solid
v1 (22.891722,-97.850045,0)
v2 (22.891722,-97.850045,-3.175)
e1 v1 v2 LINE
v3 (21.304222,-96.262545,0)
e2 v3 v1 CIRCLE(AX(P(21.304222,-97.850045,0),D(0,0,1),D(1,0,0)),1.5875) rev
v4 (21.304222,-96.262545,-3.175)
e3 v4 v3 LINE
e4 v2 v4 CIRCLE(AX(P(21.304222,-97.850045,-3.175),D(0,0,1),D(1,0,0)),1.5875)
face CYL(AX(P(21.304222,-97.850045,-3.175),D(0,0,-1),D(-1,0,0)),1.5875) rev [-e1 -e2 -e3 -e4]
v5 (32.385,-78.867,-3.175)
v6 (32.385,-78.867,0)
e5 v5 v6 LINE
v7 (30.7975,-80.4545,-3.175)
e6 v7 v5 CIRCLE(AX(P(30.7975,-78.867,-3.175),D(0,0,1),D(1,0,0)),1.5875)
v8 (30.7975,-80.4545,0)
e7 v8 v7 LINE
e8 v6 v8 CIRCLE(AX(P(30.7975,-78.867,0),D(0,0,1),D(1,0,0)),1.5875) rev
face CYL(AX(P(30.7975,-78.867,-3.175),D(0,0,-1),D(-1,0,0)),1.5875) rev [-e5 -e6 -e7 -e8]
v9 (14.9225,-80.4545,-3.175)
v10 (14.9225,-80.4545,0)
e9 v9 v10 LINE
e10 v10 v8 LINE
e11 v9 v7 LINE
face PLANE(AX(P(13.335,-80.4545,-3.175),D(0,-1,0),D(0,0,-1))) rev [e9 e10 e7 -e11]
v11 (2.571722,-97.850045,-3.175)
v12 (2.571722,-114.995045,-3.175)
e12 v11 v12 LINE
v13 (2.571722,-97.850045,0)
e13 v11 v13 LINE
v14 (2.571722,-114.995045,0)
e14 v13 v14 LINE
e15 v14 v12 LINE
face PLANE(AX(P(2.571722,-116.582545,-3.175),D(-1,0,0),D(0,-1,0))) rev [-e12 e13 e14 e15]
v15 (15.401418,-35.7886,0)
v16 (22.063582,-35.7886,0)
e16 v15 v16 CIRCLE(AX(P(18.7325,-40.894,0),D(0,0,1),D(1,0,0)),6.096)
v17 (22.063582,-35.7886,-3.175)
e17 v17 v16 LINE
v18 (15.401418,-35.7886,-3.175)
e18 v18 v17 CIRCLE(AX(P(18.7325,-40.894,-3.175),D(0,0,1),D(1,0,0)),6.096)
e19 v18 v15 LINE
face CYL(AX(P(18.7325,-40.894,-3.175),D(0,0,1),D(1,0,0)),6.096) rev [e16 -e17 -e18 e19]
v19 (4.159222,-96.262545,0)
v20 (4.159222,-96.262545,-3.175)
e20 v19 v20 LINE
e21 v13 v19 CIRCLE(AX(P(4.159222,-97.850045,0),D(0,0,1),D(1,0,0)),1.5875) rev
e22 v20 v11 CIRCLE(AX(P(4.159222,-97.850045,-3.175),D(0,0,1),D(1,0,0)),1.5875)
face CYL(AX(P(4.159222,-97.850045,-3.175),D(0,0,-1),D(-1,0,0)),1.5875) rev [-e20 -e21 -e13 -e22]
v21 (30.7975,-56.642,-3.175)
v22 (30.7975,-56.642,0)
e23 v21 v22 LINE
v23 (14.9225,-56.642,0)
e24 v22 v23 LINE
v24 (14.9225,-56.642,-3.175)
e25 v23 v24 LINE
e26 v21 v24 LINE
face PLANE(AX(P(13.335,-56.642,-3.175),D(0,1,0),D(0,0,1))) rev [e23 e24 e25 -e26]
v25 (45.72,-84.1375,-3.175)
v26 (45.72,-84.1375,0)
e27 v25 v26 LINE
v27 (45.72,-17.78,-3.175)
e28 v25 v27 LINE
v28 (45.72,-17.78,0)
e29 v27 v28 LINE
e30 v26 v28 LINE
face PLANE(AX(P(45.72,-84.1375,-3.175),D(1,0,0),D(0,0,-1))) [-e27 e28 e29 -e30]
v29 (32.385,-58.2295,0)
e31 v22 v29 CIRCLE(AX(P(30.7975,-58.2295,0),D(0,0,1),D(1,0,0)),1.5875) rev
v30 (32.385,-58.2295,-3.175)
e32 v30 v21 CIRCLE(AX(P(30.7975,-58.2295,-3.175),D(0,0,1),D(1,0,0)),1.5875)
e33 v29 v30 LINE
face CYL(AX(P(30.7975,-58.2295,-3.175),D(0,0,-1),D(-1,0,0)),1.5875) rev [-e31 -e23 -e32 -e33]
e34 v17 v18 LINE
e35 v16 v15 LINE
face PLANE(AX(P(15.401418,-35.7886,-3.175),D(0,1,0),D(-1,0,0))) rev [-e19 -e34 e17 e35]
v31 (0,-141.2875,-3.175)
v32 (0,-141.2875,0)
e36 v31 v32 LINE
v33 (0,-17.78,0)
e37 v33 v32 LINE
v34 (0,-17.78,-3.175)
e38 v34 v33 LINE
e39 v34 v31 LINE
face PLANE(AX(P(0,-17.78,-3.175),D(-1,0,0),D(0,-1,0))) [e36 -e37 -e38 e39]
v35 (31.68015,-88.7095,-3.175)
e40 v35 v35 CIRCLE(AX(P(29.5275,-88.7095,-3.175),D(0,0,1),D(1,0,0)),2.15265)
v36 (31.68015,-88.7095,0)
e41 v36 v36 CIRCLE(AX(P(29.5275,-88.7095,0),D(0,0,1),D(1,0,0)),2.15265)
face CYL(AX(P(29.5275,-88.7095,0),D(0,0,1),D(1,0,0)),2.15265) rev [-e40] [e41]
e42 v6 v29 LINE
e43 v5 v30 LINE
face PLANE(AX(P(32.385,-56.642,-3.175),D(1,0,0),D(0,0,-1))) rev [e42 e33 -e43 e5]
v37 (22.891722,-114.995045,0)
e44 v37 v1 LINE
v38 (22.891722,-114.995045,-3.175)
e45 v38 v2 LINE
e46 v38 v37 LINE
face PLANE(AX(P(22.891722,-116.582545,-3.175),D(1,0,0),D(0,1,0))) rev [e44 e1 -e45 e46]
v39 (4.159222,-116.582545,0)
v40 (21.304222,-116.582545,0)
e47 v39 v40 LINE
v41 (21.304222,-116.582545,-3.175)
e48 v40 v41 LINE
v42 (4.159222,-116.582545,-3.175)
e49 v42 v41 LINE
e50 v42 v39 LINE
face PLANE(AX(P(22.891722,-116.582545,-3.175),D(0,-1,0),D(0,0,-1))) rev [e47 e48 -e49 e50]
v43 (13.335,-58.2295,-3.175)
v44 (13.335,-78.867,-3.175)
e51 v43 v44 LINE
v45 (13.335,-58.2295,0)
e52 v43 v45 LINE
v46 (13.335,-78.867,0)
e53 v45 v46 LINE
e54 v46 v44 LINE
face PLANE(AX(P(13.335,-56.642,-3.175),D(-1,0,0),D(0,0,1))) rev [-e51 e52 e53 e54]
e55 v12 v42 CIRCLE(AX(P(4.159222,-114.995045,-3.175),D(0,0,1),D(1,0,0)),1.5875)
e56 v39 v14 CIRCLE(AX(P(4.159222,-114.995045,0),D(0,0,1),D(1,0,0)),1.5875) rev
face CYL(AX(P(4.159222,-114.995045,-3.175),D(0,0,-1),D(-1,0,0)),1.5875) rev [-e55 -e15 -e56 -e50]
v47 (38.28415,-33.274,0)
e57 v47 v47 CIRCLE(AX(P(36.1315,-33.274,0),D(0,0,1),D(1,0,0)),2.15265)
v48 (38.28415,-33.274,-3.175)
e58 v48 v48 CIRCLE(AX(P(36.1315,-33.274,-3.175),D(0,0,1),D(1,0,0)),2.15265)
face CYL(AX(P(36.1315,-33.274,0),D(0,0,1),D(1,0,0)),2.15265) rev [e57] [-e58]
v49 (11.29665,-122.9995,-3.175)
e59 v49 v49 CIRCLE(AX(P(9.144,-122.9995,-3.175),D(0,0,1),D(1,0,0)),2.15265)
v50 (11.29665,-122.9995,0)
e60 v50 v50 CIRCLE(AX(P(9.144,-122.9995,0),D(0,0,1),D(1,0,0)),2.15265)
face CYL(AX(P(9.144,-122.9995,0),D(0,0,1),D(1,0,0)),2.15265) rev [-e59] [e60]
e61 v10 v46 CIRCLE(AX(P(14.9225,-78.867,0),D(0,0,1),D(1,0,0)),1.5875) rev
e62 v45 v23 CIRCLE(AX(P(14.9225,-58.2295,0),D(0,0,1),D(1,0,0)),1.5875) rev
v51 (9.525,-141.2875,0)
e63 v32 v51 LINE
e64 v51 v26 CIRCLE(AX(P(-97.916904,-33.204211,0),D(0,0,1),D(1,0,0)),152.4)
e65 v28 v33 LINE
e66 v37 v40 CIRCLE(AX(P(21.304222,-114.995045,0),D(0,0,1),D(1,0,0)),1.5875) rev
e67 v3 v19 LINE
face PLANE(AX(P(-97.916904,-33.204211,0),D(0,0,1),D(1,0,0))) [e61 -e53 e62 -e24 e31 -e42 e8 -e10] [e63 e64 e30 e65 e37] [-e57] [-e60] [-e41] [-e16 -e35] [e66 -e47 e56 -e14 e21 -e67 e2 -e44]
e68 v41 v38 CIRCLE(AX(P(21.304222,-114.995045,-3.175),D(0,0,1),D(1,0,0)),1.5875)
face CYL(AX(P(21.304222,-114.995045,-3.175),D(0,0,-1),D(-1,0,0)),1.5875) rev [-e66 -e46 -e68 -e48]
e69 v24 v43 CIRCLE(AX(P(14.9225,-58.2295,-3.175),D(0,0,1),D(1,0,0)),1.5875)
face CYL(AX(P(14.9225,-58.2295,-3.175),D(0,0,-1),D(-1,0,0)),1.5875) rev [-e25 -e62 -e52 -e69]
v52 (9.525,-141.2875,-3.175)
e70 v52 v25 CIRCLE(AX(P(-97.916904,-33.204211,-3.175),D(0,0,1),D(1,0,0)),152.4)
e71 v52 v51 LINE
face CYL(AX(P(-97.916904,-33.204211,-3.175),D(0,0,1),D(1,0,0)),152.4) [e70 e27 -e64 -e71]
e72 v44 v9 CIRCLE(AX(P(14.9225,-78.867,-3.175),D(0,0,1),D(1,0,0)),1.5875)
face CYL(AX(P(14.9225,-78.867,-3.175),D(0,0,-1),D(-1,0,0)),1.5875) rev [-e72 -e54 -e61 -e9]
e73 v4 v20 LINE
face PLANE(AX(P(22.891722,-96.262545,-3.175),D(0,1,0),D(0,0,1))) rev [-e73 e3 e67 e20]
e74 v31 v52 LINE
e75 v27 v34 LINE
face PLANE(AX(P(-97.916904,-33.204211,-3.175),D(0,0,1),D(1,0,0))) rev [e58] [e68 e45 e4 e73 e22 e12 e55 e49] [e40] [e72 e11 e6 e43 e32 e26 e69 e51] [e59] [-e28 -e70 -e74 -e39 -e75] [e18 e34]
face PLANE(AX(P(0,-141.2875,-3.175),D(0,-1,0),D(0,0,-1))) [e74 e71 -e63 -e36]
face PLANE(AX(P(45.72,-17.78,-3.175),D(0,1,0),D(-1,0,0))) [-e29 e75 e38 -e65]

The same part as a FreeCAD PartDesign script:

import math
import FreeCAD as App
import Part
import Sketcher

V = App.Vector
Q = App.Units.Quantity


def edges_at(feature, points):
    """Names of the edges that pass closest to the given points."""
    edges = feature.Shape.Edges
    near = lambda p: min(range(len(edges)), key=lambda i: edges[i].distToShape(Part.Vertex(*p))[0])
    return sorted({f"Edge{near(p) + 1}" for p in points})

doc = App.newDocument("Part")
body = doc.addObject("PartDesign::Body", "Body")

sketch1 = doc.addObject("Sketcher::SketchObject", "Sketch")
body.addObject(sketch1)
sketch1.AttachmentSupport = (doc.XY_Plane, [""])
sketch1.MapMode = "FlatFace"
sketch1.addGeometry(Part.LineSegment(V(0, -17.78, 0), V(0, -141.2875, 0)), False)
sketch1.addGeometry(Part.LineSegment(V(0, -141.2875, 0), V(9.525, -141.2875, 0)), False)
sketch1.addGeometry(Part.ArcOfCircle(Part.Circle(V(-97.916904, -33.204211, 0), V(0, 0, 1), 152.4), math.radians(-45.170507), math.radians(-19.52438)), False)
sketch1.addGeometry(Part.LineSegment(V(45.72, -84.1375, 0), V(45.72, -17.78, 0)), False)
sketch1.addGeometry(Part.LineSegment(V(45.72, -17.78, 0), V(0, -17.78, 0)), False)
sketch1.addGeometry(Part.Circle(V(18.7325, -40.894, 0), V(0, 0, 1), 1.190051), False)
sketch1.addConstraint(Sketcher.Constraint("Coincident", 0, 2, 1, 1))
sketch1.addConstraint(Sketcher.Constraint("Coincident", 1, 2, 2, 1))
sketch1.addConstraint(Sketcher.Constraint("Coincident", 2, 2, 3, 1))
sketch1.addConstraint(Sketcher.Constraint("Coincident", 3, 2, 4, 1))
sketch1.addConstraint(Sketcher.Constraint("Coincident", 4, 2, 0, 1))
sketch1.addConstraint(Sketcher.Constraint("Vertical", 0))
sketch1.addConstraint(Sketcher.Constraint("Horizontal", 1))
sketch1.addConstraint(Sketcher.Constraint("Vertical", 3))
sketch1.addConstraint(Sketcher.Constraint("Horizontal", 4))
sketch1.addConstraint(Sketcher.Constraint("PointOnObject", 0, 2, -2))
sketch1.addConstraint(Sketcher.Constraint("Radius", 2, Q("6 in")))
sketch1.addConstraint(Sketcher.Constraint("DistanceX", 4, 2, 4, 1, Q("1.8 in")))
sketch1.addConstraint(Sketcher.Constraint("DistanceY", 3, 2, -1, 1, Q("0.7 in")))
sketch1.addConstraint(Sketcher.Constraint("Diameter", 5, 2.380102))
sketch1.addConstraint(Sketcher.Constraint("DistanceX", 1, 1, 1, 2, Q("0.375 in")))
sketch1.addConstraint(Sketcher.Constraint("DistanceY", 5, 3, -1, 1, Q("1.61 in")))
sketch1.addConstraint(Sketcher.Constraint("DistanceY", 1, 2, 2, 2, Q("2.25 in")))
sketch1.addConstraint(Sketcher.Constraint("DistanceY", 0, 2, 0, 1, Q("4.8625 in")))
sketch1.addConstraint(Sketcher.Constraint("DistanceX", 5, 3, 2, 2, Q("1.0625 in")))
pad1 = doc.addObject("PartDesign::Pad", "Pad")
body.addObject(pad1)
pad1.Profile = sketch1
pad1.Length = Q("0.125 in")
pad1.Reversed = True

sketch2 = doc.addObject("Sketcher::SketchObject", "Sketch001")
body.addObject(sketch2)
sketch2.AttachmentSupport = (doc.XY_Plane, [""])
sketch2.MapMode = "FlatFace"
sketch2.addGeometry(Part.LineSegment(V(22.063582, -35.7886, 0), V(15.401418, -35.7886, 0)), False)
sketch2.addGeometry(Part.ArcOfCircle(Part.Circle(V(18.7325, -40.894, 0), V(0, 0, 1), 6.096), math.radians(123.12294), math.radians(416.87706)), False)
sketch2.addConstraint(Sketcher.Constraint("Coincident", 0, 1, 1, 2))
sketch2.addConstraint(Sketcher.Constraint("Coincident", 1, 1, 0, 2))
sketch2.addConstraint(Sketcher.Constraint("Horizontal", 0))
sketch2.addConstraint(Sketcher.Constraint("Radius", 1, Q("0.24 in")))
sketch2.addConstraint(Sketcher.Constraint("DistanceY", 1, 3, -1, 1, Q("1.61 in")))
sketch2.addConstraint(Sketcher.Constraint("DistanceY", 0, 1, -1, 1, Q("1.409 in")))
sketch2.addConstraint(Sketcher.Constraint("DistanceX", -1, 1, 1, 3, Q("0.7375 in")))
pocket1 = doc.addObject("PartDesign::Pocket", "Pocket")
body.addObject(pocket1)
pocket1.Profile = sketch2
pocket1.Type = "ThroughAll"

sketch3 = doc.addObject("Sketcher::SketchObject", "Sketch002")
body.addObject(sketch3)
sketch3.AttachmentSupport = (doc.XY_Plane, [""])
sketch3.MapMode = "FlatFace"
sketch3.addGeometry(Part.LineSegment(V(13.335, -56.642, 0), V(13.335, -80.4545, 0)), False)
sketch3.addGeometry(Part.LineSegment(V(13.335, -80.4545, 0), V(32.385, -80.4545, 0)), False)
sketch3.addGeometry(Part.LineSegment(V(32.385, -80.4545, 0), V(32.385, -56.642, 0)), False)
sketch3.addGeometry(Part.LineSegment(V(32.385, -56.642, 0), V(13.335, -56.642, 0)), False)
sketch3.addConstraint(Sketcher.Constraint("Coincident", 0, 2, 1, 1))
sketch3.addConstraint(Sketcher.Constraint("Coincident", 1, 2, 2, 1))
sketch3.addConstraint(Sketcher.Constraint("Coincident", 2, 2, 3, 1))
sketch3.addConstraint(Sketcher.Constraint("Coincident", 3, 2, 0, 1))
sketch3.addConstraint(Sketcher.Constraint("Vertical", 0))
sketch3.addConstraint(Sketcher.Constraint("Horizontal", 1))
sketch3.addConstraint(Sketcher.Constraint("Vertical", 2))
sketch3.addConstraint(Sketcher.Constraint("Horizontal", 3))
sketch3.addConstraint(Sketcher.Constraint("DistanceX", 1, 1, 1, 2, Q("0.75 in")))
sketch3.addConstraint(Sketcher.Constraint("DistanceY", 0, 2, 0, 1, Q("0.9375 in")))
sketch3.addConstraint(Sketcher.Constraint("DistanceY", 2, 2, -1, 1, Q("2.23 in")))
sketch3.addConstraint(Sketcher.Constraint("DistanceX", -1, 1, 0, 2, Q("0.525 in")))
pocket2 = doc.addObject("PartDesign::Pocket", "Pocket001")
body.addObject(pocket2)
pocket2.Profile = sketch3
pocket2.Type = "ThroughAll"

sketch4 = doc.addObject("Sketcher::SketchObject", "Sketch003")
body.addObject(sketch4)
sketch4.AttachmentSupport = (doc.XY_Plane, [""])
sketch4.MapMode = "FlatFace"
sketch4.addGeometry(Part.LineSegment(V(2.571722, -96.262545, 0), V(2.571722, -116.582545, 0)), False)
sketch4.addGeometry(Part.LineSegment(V(2.571722, -116.582545, 0), V(22.891722, -116.582545, 0)), False)
sketch4.addGeometry(Part.LineSegment(V(22.891722, -116.582545, 0), V(22.891722, -96.262545, 0)), False)
sketch4.addGeometry(Part.LineSegment(V(22.891722, -96.262545, 0), V(2.571722, -96.262545, 0)), False)
sketch4.addConstraint(Sketcher.Constraint("Coincident", 0, 2, 1, 1))
sketch4.addConstraint(Sketcher.Constraint("Coincident", 1, 2, 2, 1))
sketch4.addConstraint(Sketcher.Constraint("Coincident", 2, 2, 3, 1))
sketch4.addConstraint(Sketcher.Constraint("Coincident", 3, 2, 0, 1))
sketch4.addConstraint(Sketcher.Constraint("Vertical", 0))
sketch4.addConstraint(Sketcher.Constraint("Horizontal", 1))
sketch4.addConstraint(Sketcher.Constraint("Vertical", 2))
sketch4.addConstraint(Sketcher.Constraint("Horizontal", 3))
sketch4.addConstraint(Sketcher.Constraint("Equal", 3, 0))
sketch4.addConstraint(Sketcher.Constraint("DistanceX", 1, 1, 1, 2, Q("0.8 in")))
sketch4.addConstraint(Sketcher.Constraint("DistanceX", -1, 1, 0, 2, 2.571722))
sketch4.addConstraint(Sketcher.Constraint("DistanceY", 0, 2, -1, 1, 116.582545))
pocket3 = doc.addObject("PartDesign::Pocket", "Pocket002")
body.addObject(pocket3)
pocket3.Profile = sketch4
pocket3.Type = "ThroughAll"
doc.recompute()

fillet = doc.addObject("PartDesign::Fillet", "Fillet")
body.addObject(fillet)
fillet.Base = (pocket3, edges_at(pocket3, [
    (13.335, -80.454, -1.587),
    (13.335, -56.642, -1.587),
    (32.385, -56.642, -1.587),
    (32.385, -80.454, -1.587),
    (22.892, -96.263, -1.587),
    (22.892, -116.583, -1.587),
    (2.572, -116.583, -1.587),
    (2.572, -96.263, -1.587),
]))
fillet.Radius = Q("0.0625 in")

sketch5 = doc.addObject("Sketcher::SketchObject", "Sketch004")
body.addObject(sketch5)
sketch5.AttachmentSupport = (doc.XY_Plane, [""])
sketch5.MapMode = "FlatFace"
sketch5.addGeometry(Part.Circle(V(9.144, -122.9995, 0), V(0, 0, 1), 2.15265), False)
sketch5.addGeometry(Part.Circle(V(29.5275, -88.7095, 0), V(0, 0, 1), 2.15265), False)
sketch5.addGeometry(Part.Circle(V(36.1315, -33.274, 0), V(0, 0, 1), 2.15265), False)
sketch5.addConstraint(Sketcher.Constraint("Equal", 0, 1))
sketch5.addConstraint(Sketcher.Constraint("Equal", 1, 2))
sketch5.addConstraint(Sketcher.Constraint("Diameter", 0, Q("0.1695 in")))
sketch5.addConstraint(Sketcher.Constraint("DistanceX", -1, 1, 0, 3, Q("0.36 in")))
sketch5.addConstraint(Sketcher.Constraint("DistanceY", 2, 3, -1, 1, Q("1.31 in")))
sketch5.addConstraint(Sketcher.Constraint("DistanceY", 0, 3, 1, 3, Q("1.35 in")))
sketch5.addConstraint(Sketcher.Constraint("DistanceX", 1, 3, 2, 3, Q("0.26 in")))
sketch5.addConstraint(Sketcher.Constraint("DistanceX", 0, 3, 2, 3, Q("1.0625 in")))
sketch5.addConstraint(Sketcher.Constraint("DistanceY", 0, 3, -1, 1, Q("4.8425 in")))
doc.recompute()
hole = doc.addObject("PartDesign::Hole", "Hole")
body.addObject(hole)
hole.Profile = sketch5
hole.ThreadType = "None"
hole.Diameter = Q("0.1695 in")
hole.DepthType = "ThroughAll"

doc.recompute()
